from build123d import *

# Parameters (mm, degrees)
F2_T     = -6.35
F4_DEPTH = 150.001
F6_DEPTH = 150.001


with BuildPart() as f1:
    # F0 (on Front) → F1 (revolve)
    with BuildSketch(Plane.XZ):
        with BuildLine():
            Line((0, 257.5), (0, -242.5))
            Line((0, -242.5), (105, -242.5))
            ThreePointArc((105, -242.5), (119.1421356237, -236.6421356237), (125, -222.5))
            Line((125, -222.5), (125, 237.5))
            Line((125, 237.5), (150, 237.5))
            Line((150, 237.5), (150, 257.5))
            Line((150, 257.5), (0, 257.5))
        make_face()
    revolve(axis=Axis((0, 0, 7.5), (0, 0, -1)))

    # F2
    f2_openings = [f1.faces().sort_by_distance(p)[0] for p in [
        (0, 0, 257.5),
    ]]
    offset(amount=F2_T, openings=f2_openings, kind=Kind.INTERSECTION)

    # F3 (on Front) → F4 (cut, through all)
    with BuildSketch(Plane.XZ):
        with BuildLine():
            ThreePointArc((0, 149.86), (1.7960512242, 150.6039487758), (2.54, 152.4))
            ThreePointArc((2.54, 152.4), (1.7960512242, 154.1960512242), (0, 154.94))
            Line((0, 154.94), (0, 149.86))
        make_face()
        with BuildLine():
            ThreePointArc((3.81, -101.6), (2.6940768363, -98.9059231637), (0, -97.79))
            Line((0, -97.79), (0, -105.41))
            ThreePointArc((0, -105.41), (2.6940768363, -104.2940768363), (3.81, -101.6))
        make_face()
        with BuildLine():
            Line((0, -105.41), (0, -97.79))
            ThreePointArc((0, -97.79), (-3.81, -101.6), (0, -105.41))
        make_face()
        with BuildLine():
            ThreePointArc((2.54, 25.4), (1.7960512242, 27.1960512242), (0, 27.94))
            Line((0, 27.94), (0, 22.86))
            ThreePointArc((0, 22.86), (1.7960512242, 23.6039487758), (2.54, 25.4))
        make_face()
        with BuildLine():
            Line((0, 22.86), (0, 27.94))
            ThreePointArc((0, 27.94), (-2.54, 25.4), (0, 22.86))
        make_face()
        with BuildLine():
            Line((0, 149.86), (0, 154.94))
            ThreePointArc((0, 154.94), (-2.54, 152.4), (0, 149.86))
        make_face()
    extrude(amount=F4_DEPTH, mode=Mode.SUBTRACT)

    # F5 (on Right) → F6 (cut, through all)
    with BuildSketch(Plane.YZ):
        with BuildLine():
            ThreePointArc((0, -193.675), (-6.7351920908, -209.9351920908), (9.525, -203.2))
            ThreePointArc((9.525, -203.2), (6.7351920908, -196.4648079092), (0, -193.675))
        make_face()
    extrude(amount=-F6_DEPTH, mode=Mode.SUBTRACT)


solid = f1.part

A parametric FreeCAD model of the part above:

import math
import FreeCAD as App
import Part
import Sketcher


def faces_at(feature, points):
    """Names of the faces that lie closest to the given points."""
    faces = feature.Shape.Faces
    near = lambda p: min(range(len(faces)), key=lambda i: faces[i].distToShape(Part.Vertex(*p))[0])
    return sorted({f"Face{near(p) + 1}" for p in points})

doc = App.newDocument("Part")
body = doc.addObject("PartDesign::Body", "Body")

# Sketch on XZ plane
sketch1 = body.newObject("Sketcher::SketchObject", "Sketch")
sketch1.AttachmentSupport = (doc.getObject("XZ_Plane"), [""])
sketch1.MapMode = "FlatFace"
sketch1.addGeometry([
    Part.LineSegment(App.Vector(0, 258, 0), App.Vector(0, -242, 0)),  # 0
    Part.LineSegment(App.Vector(0, -242, 0), App.Vector(105, -242, 0)),  # 1
    Part.ArcOfCircle(Part.Circle(App.Vector(105, -222, 0), App.Vector(0, 0, 1), 20), math.radians(-90), math.radians(0)),  # 2
    Part.LineSegment(App.Vector(125, -222, 0), App.Vector(125, 238, 0)),  # 3
    Part.LineSegment(App.Vector(125, 238, 0), App.Vector(150, 238, 0)),  # 4
    Part.LineSegment(App.Vector(150, 238, 0), App.Vector(150, 258, 0)),  # 5
    Part.LineSegment(App.Vector(150, 258, 0), App.Vector(0, 258, 0)),  # 6
], False)
sketch1.addConstraint([
    Sketcher.Constraint("Coincident", 0, 2, 1, 1),
    Sketcher.Constraint("Tangent", 1, 2, 2, 1),
    Sketcher.Constraint("Tangent", 2, 2, 3, 1),
    Sketcher.Constraint("Coincident", 3, 2, 4, 1),
    Sketcher.Constraint("Coincident", 4, 2, 5, 1),
    Sketcher.Constraint("Coincident", 5, 2, 6, 1),
    Sketcher.Constraint("Coincident", 6, 2, 0, 1),
    Sketcher.Constraint("Vertical", 0),
    Sketcher.Constraint("Horizontal", 1),
    Sketcher.Constraint("Vertical", 3),
    Sketcher.Constraint("Horizontal", 4),
    Sketcher.Constraint("Vertical", 5),
    Sketcher.Constraint("Horizontal", 6),
    Sketcher.Constraint("PointOnObject", 0, 2, -2),
    Sketcher.Constraint("Radius", 2, 20.0),
    Sketcher.Constraint("DistanceX", 1, 1, 1, 2, 105.0),
    Sketcher.Constraint("DistanceX", 4, 1, 4, 2, 25.0),
    Sketcher.Constraint("DistanceY", 0, 2, 0, 1, 500.0),
    Sketcher.Constraint("DistanceY", 3, 1, 3, 2, 460.0),
    Sketcher.Constraint("DistanceY", 2, 3, -1, 1, 222.5),
])
revolution = body.newObject("PartDesign::Revolution", "Revolution")
revolution.Profile = sketch1
revolution.ReferenceAxis = (sketch1, ["V_Axis"])
revolution.Angle = 360
doc.recompute()

thickness = body.newObject("PartDesign::Thickness", "Thickness")
thickness.Base = (revolution, faces_at(revolution, [(0, 0, 257.5)]))
thickness.Value = 6.35
thickness.Reversed = True
thickness.Join = "Intersection"

# Sketch on XZ plane
sketch2 = body.newObject("Sketcher::SketchObject", "Sketch001")
sketch2.AttachmentSupport = (doc.getObject("XZ_Plane"), [""])
sketch2.MapMode = "FlatFace"
sketch2.addGeometry([
    Part.ArcOfCircle(Part.Circle(App.Vector(0, 152.4, 0), App.Vector(0, 0, 1), 2.5), math.radians(-90), math.radians(0)),  # 0
    Part.ArcOfCircle(Part.Circle(App.Vector(0, 152.4, 0), App.Vector(0, 0, 1), 2.5), math.radians(0), math.radians(90)),  # 1
    Part.ArcOfCircle(Part.Circle(App.Vector(0, 152.4, 0), App.Vector(0, 0, 1), 2.5), math.radians(90), math.radians(270)),  # 2
    Part.ArcOfCircle(Part.Circle(App.Vector(0, -101.6, 0), App.Vector(0, 0, 1), 3.8), math.radians(0), math.radians(90)),  # 3
    Part.ArcOfCircle(Part.Circle(App.Vector(0, -101.6, 0), App.Vector(0, 0, 1), 3.8), math.radians(90), math.radians(270)),  # 4
    Part.ArcOfCircle(Part.Circle(App.Vector(0, -101.6, 0), App.Vector(0, 0, 1), 3.8), math.radians(-90), math.radians(0)),  # 5
    Part.ArcOfCircle(Part.Circle(App.Vector(0, 25.4, 0), App.Vector(0, 0, 1), 2.5), math.radians(0), math.radians(90)),  # 6
    Part.ArcOfCircle(Part.Circle(App.Vector(0, 25.4, 0), App.Vector(0, 0, 1), 2.5), math.radians(90), math.radians(270)),  # 7
    Part.ArcOfCircle(Part.Circle(App.Vector(0, 25.4, 0), App.Vector(0, 0, 1), 2.5), math.radians(-90), math.radians(0)),  # 8
], False)
sketch2.addConstraint([
    Sketcher.Constraint("Tangent", 0, 2, 1, 1),
    Sketcher.Constraint("Tangent", 1, 2, 2, 1),
    Sketcher.Constraint("Tangent", 2, 2, 0, 1),
    Sketcher.Constraint("Tangent", 3, 2, 4, 1),
    Sketcher.Constraint("Tangent", 4, 2, 5, 1),
    Sketcher.Constraint("Tangent", 5, 2, 3, 1),
    Sketcher.Constraint("Tangent", 6, 2, 7, 1),
    Sketcher.Constraint("Tangent", 7, 2, 8, 1),
    Sketcher.Constraint("Tangent", 8, 2, 6, 1),
    Sketcher.Constraint("Equal", 2, 6),
    Sketcher.Constraint("PointOnObject", 0, 3, -2),
    Sketcher.Constraint("PointOnObject", 3, 3, -2),
    Sketcher.Constraint("PointOnObject", 6, 3, -2),
    Sketcher.Constraint("PointOnObject", 1, 2, -2),
    Sketcher.Constraint("PointOnObject", 2, 2, -2),
    Sketcher.Constraint("PointOnObject", 3, 2, -2),
    Sketcher.Constraint("PointOnObject", 4, 2, -2),
    Sketcher.Constraint("PointOnObject", 6, 2, -2),
    Sketcher.Constraint("PointOnObject", 7, 2, -2),
    Sketcher.Constraint("Horizontal", 2, 3, 0, 2),
    Sketcher.Constraint("Horizontal", 4, 3, 5, 2),
    Sketcher.Constraint("Horizontal", 7, 3, 8, 2),
    Sketcher.Constraint("Radius", 0, 2.54),
    Sketcher.Constraint("Radius", 3, 3.81),
    Sketcher.Constraint("DistanceY", 3, 3, 0, 3, 254.0),
    Sketcher.Constraint("DistanceY", 6, 3, 0, 3, 127.0),
    Sketcher.Constraint("DistanceY", -1, 1, 0, 3, 152.4),
])
pocket1 = body.newObject("PartDesign::Pocket", "Pocket")
pocket1.Profile = sketch2
pocket1.Type = "ThroughAll"
pocket1.Reversed = True

# Sketch on YZ plane
sketch3 = body.newObject("Sketcher::SketchObject", "Sketch002")
sketch3.AttachmentSupport = (doc.getObject("YZ_Plane"), [""])
sketch3.MapMode = "FlatFace"
sketch3.addGeometry(Part.Circle(App.Vector(0, -203, 0), App.Vector(0, 0, 1), 10), False)
sketch3.addConstraint([
    Sketcher.Constraint("PointOnObject", 0, 3, -2),
    Sketcher.Constraint("Diameter", 0, 19.05),
    Sketcher.Constraint("DistanceY", 0, 3, -1, 1, 203.2),
])
pocket2 = body.newObject("PartDesign::Pocket", "Pocket001")
pocket2.Profile = sketch3
pocket2.Type = "ThroughAll"

doc.recompute()
